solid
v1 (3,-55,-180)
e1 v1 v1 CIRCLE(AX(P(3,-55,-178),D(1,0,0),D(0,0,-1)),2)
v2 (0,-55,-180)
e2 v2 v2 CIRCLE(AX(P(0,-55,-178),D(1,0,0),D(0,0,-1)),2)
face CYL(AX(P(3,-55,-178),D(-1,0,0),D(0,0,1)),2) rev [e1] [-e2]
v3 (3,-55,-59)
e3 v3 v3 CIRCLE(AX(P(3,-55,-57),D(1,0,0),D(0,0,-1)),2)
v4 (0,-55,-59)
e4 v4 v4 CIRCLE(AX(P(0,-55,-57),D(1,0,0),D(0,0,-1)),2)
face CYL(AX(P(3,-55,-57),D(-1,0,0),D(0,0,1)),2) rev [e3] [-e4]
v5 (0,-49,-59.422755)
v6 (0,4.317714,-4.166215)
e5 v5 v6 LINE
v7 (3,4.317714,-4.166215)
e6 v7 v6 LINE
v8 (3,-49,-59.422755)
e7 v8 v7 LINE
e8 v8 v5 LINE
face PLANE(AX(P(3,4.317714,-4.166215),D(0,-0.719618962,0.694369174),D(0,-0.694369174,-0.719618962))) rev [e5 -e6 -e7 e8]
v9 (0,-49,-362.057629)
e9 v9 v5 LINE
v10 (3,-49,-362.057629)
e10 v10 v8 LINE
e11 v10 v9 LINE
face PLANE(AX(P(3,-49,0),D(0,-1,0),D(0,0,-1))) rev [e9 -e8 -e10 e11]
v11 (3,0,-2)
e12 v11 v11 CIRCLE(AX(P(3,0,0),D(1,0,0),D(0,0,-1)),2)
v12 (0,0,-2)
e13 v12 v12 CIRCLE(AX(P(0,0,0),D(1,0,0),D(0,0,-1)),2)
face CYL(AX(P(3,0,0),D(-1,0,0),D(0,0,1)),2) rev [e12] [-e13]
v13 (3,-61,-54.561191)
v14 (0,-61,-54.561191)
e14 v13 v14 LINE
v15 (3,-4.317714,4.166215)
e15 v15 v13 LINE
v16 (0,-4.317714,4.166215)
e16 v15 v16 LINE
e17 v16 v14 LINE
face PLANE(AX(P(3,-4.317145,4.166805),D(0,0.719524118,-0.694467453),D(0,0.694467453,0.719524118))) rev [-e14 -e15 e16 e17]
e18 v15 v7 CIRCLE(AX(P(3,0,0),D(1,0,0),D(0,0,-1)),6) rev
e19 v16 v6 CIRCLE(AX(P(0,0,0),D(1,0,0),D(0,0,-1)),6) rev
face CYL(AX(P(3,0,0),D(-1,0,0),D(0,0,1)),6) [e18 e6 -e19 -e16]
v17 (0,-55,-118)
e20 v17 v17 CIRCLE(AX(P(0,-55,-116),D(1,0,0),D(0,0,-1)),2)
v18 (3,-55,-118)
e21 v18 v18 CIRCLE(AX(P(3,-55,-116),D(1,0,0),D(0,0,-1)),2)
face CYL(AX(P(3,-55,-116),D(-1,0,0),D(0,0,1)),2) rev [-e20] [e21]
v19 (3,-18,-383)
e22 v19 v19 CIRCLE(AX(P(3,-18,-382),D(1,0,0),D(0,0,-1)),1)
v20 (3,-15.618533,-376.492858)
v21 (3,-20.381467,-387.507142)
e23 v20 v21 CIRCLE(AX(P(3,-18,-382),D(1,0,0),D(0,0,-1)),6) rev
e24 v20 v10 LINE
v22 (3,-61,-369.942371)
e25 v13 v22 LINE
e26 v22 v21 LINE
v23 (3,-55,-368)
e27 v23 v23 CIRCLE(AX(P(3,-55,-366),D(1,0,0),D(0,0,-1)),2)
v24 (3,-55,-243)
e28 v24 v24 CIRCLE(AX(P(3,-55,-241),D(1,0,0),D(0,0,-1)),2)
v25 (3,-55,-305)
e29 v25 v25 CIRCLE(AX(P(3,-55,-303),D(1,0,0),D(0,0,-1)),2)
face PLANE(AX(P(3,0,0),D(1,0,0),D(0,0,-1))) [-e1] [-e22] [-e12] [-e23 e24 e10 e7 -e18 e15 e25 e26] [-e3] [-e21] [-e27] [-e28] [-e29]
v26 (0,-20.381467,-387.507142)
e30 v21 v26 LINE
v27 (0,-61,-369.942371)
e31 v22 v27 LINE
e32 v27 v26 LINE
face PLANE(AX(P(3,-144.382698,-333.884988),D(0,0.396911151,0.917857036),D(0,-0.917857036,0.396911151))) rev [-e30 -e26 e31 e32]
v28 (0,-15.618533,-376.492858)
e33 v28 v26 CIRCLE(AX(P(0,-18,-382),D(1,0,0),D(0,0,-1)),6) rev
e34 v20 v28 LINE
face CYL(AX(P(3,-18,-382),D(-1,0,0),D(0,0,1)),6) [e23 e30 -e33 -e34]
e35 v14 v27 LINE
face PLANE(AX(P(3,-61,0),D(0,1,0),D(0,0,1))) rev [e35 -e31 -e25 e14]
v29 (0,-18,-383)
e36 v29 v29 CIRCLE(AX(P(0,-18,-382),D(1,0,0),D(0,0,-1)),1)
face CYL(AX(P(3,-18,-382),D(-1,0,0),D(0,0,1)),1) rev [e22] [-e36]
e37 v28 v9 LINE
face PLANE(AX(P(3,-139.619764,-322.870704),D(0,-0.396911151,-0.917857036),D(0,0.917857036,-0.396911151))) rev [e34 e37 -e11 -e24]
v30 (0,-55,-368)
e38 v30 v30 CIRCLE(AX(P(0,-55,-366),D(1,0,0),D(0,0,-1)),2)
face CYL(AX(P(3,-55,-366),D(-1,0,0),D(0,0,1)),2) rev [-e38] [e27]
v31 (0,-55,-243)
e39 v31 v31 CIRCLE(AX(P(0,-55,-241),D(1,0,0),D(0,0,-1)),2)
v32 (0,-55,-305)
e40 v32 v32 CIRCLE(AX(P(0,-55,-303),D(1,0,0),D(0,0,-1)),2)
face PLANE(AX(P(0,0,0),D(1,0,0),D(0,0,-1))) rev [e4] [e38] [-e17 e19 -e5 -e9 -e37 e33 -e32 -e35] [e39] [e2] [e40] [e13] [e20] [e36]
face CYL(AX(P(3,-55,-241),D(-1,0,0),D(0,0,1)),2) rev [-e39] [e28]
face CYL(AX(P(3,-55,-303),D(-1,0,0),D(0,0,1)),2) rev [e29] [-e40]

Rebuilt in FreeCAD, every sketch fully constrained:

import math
import FreeCAD as App
import Part
import Sketcher
Q = App.Units.Quantity

doc = App.newDocument("Part")
params = doc.addObject("Spreadsheet::Sheet", "Params")
for row, (alias, value) in enumerate([
    ("sketch1_diameter", "4 mm"),
    ("sketch1_diameter2", "2 mm"),
    ("sketch1_radius", "6 mm"),
    ("pad1_length", "3 mm"),
], start=1):
    params.set(f"A{row}", alias)
    params.set(f"B{row}", "=" + value)
    params.setAlias(f"B{row}", alias)

body = doc.addObject("PartDesign::Body", "Body")

sketch1 = body.newObject("Sketcher::SketchObject", "Sketch")
sketch1.AttachmentSupport = (doc.getObject("YZ_Plane"), [""])
sketch1.MapMode = "FlatFace"
sketch1.addGeometry([
    Part.ArcOfCircle(Part.Circle(App.Vector(-18, -382, 0), App.Vector(0, 0, 1), 6), math.radians(-113), math.radians(67)),
    Part.LineSegment(App.Vector(-15.6, -376.5, 0), App.Vector(-49, -362.1, 0)),
    Part.LineSegment(App.Vector(-49, -362.1, 0), App.Vector(-49, -59.4, 0)),
    Part.LineSegment(App.Vector(-49, -59.4, 0), App.Vector(4.3, -4.2, 0)),
    Part.ArcOfCircle(Part.Circle(App.Vector(0, 0, 0), App.Vector(0, 0, 1), 6), math.radians(-44), math.radians(136)),
    Part.LineSegment(App.Vector(-4.3, 4.2, 0), App.Vector(-61, -54.6, 0)),
    Part.LineSegment(App.Vector(-61, -54.6, 0), App.Vector(-61, -369.9, 0)),
    Part.LineSegment(App.Vector(-61, -369.9, 0), App.Vector(-20.4, -387.5, 0)),
    Part.Circle(App.Vector(-55, -366, 0), App.Vector(0, 0, 1), 2),
    Part.Circle(App.Vector(-55, -303, 0), App.Vector(0, 0, 1), 2),
    Part.Circle(App.Vector(-55, -241, 0), App.Vector(0, 0, 1), 2),
    Part.Circle(App.Vector(-55, -178, 0), App.Vector(0, 0, 1), 2),
    Part.Circle(App.Vector(-55, -116, 0), App.Vector(0, 0, 1), 2),
    Part.Circle(App.Vector(-55, -57, 0), App.Vector(0, 0, 1), 2),
    Part.Circle(App.Vector(-18, -382, 0), App.Vector(0, 0, 1), 1),
    Part.Circle(App.Vector(0, 0, 0), App.Vector(0, 0, 1), 2),
], False)
sketch1.addConstraint([
    Sketcher.Constraint("Tangent", 0, 2, 1, 1),
    Sketcher.Constraint("Coincident", 1, 2, 2, 1),
    Sketcher.Constraint("Coincident", 2, 2, 3, 1),
    Sketcher.Constraint("Tangent", 3, 2, 4, 1),
    Sketcher.Constraint("Coincident", 4, 2, 5, 1),
    Sketcher.Constraint("Coincident", 5, 2, 6, 1),
    Sketcher.Constraint("Coincident", 6, 2, 7, 1),
    Sketcher.Constraint("Tangent", 7, 2, 0, 1),
    Sketcher.Constraint("Vertical", 2),
    Sketcher.Constraint("Vertical", 6),
    Sketcher.Constraint("Coincident", 4, 3, -1, 1),
    Sketcher.Constraint("Coincident", 15, 3, -1, 1),
    Sketcher.Constraint("Coincident", 14, 3, 0, 3),
    Sketcher.Constraint("Equal", 0, 4),
    Sketcher.Constraint("Equal", 8, 9),
    Sketcher.Constraint("Equal", 9, 10),
    Sketcher.Constraint("Equal", 10, 11),
    Sketcher.Constraint("Equal", 11, 12),
    Sketcher.Constraint("Equal", 12, 13),
    Sketcher.Constraint("Equal", 13, 15),
    Sketcher.Constraint("Parallel", 1, 7),
    Sketcher.Constraint("Vertical", 8, 3, 9, 3),
    Sketcher.Constraint("Vertical", 9, 3, 10, 3),
    Sketcher.Constraint("Vertical", 10, 3, 11, 3),
    Sketcher.Constraint("Vertical", 11, 3, 12, 3),
    Sketcher.Constraint("Vertical", 12, 3, 13, 3),
    Sketcher.Constraint("Diameter", 8, Q("4 mm")),
    Sketcher.Constraint("Diameter", 14, Q("2 mm")),
    Sketcher.Constraint("Radius", 0, Q("6 mm")),
    Sketcher.Constraint("DistanceX", 0, 3, -1, 1, Q("18 mm")),
    Sketcher.Constraint("DistanceY", 0, 3, -1, 1, Q("382 mm")),
    Sketcher.Constraint("DistanceX", 8, 3, -1, 1, Q("55 mm")),
    Sketcher.Constraint("DistanceY", 8, 3, -1, 1, Q("366 mm")),
    Sketcher.Constraint("DistanceY", 9, 3, -1, 1, Q("303 mm")),
    Sketcher.Constraint("DistanceY", 10, 3, -1, 1, Q("241 mm")),
    Sketcher.Constraint("DistanceY", 11, 3, -1, 1, Q("178 mm")),
    Sketcher.Constraint("DistanceY", 12, 3, -1, 1, Q("116 mm")),
    Sketcher.Constraint("DistanceY", 13, 3, -1, 1, Q("57 mm")),
    Sketcher.Constraint("DistanceX", 1, 2, -1, 1, Q("49 mm")),
    Sketcher.Constraint("DistanceX", 5, 2, -1, 1, Q("61 mm")),
    Sketcher.Constraint("DistanceY", 6, 2, 6, 1, Q("315.38118 mm")),
    Sketcher.Constraint("Distance", 3, Q("76.785831 mm")),
    Sketcher.Constraint("Distance", 7, Q("44.25366 mm")),
    Sketcher.Constraint("DistanceY", 3, 2, 4, 2, Q("8.33243 mm")),
])
sketch1.setExpression("Constraints[26]", "Params.sketch1_diameter")
sketch1.setExpression("Constraints[27]", "Params.sketch1_diameter2")
sketch1.setExpression("Constraints[28]", "Params.sketch1_radius")
pad1 = body.newObject("PartDesign::Pad", "Pad")
pad1.Profile = sketch1
pad1.setExpression("Length", "Params.pad1_length")

doc.recompute()
